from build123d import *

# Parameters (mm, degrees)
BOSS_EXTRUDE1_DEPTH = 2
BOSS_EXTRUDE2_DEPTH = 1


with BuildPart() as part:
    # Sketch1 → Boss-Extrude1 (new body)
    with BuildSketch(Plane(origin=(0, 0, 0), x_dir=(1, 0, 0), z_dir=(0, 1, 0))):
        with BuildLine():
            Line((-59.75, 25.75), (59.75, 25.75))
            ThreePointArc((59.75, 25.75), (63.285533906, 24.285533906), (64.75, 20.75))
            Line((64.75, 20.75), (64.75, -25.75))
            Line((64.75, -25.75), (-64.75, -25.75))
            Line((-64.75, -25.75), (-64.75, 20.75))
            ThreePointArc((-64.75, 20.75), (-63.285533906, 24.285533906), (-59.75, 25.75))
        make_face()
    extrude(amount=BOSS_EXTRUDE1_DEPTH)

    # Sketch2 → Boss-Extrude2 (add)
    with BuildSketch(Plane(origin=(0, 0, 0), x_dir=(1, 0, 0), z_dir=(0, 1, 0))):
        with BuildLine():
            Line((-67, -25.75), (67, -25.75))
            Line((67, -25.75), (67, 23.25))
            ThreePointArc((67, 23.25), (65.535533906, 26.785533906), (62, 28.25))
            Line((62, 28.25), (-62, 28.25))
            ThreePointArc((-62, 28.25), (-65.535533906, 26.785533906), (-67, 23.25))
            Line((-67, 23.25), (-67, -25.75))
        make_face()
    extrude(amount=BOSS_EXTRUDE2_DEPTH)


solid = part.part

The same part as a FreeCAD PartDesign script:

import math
import FreeCAD as App
import Part
import Sketcher
from FreeCAD import Vector

doc = App.newDocument("Part")
body = doc.addObject("PartDesign::Body", "Body")

sketch1 = doc.addObject("Sketcher::SketchObject", "Sketch")
body.addObject(sketch1)
sketch1.AttachmentSupport = (doc.XZ_Plane, [""])
sketch1.MapMode = "FlatFace"
sketch1.addGeometry(Part.LineSegment(Vector(60, -26, 0), Vector(-60, -26, 0)), False)
sketch1.addGeometry(Part.ArcOfCircle(Part.Circle(Vector(-60, -21, 0), Vector(0, 0, 1), 5), math.radians(180), math.radians(270)), False)
sketch1.addGeometry(Part.LineSegment(Vector(-65, -21, 0), Vector(-65, 26, 0)), False)
sketch1.addGeometry(Part.LineSegment(Vector(-65, 26, 0), Vector(65, 26, 0)), False)
sketch1.addGeometry(Part.LineSegment(Vector(65, 26, 0), Vector(65, -21, 0)), False)
sketch1.addGeometry(Part.ArcOfCircle(Part.Circle(Vector(60, -21, 0), Vector(0, 0, 1), 5), math.radians(-90), math.radians(0)), False)
sketch1.addConstraint(Sketcher.Constraint("Tangent", 0, 2, 1, 2))
sketch1.addConstraint(Sketcher.Constraint("Tangent", 1, 1, 2, 1))
sketch1.addConstraint(Sketcher.Constraint("Coincident", 2, 2, 3, 1))
sketch1.addConstraint(Sketcher.Constraint("Coincident", 3, 2, 4, 1))
sketch1.addConstraint(Sketcher.Constraint("Tangent", 4, 2, 5, 2))
sketch1.addConstraint(Sketcher.Constraint("Tangent", 5, 1, 0, 1))
sketch1.addConstraint(Sketcher.Constraint("Horizontal", 0))
sketch1.addConstraint(Sketcher.Constraint("Vertical", 2))
sketch1.addConstraint(Sketcher.Constraint("Horizontal", 3))
sketch1.addConstraint(Sketcher.Constraint("Vertical", 4))
sketch1.addConstraint(Sketcher.Constraint("Equal", 1, 5))
sketch1.addConstraint(Sketcher.Constraint("Radius", 1, 5.0))
sketch1.addConstraint(Sketcher.Constraint("DistanceX", 0, 2, 0, 1, 119.5))
sketch1.addConstraint(Sketcher.Constraint("DistanceY", 2, 1, 2, 2, 46.5))
sketch1.addConstraint(Sketcher.Constraint("DistanceX", 1, 3, -1, 1, 59.75))
sketch1.addConstraint(Sketcher.Constraint("DistanceY", 1, 3, -1, 1, 20.75))
pad1 = doc.addObject("PartDesign::Pad", "Pad")
body.addObject(pad1)
pad1.Profile = sketch1
pad1.Length = 2
pad1.Reversed = True

sketch2 = doc.addObject("Sketcher::SketchObject", "Sketch001")
body.addObject(sketch2)
sketch2.AttachmentSupport = (doc.XZ_Plane, [""])
sketch2.MapMode = "FlatFace"
sketch2.addGeometry(Part.LineSegment(Vector(-67, 26, 0), Vector(67, 26, 0)), False)
sketch2.addGeometry(Part.LineSegment(Vector(67, 26, 0), Vector(67, -23, 0)), False)
sketch2.addGeometry(Part.ArcOfCircle(Part.Circle(Vector(62, -23, 0), Vector(0, 0, 1), 5), math.radians(-90), math.radians(0)), False)
sketch2.addGeometry(Part.LineSegment(Vector(62, -28, 0), Vector(-62, -28, 0)), False)
sketch2.addGeometry(Part.ArcOfCircle(Part.Circle(Vector(-62, -23, 0), Vector(0, 0, 1), 5), math.radians(180), math.radians(270)), False)
sketch2.addGeometry(Part.LineSegment(Vector(-67, -23, 0), Vector(-67, 26, 0)), False)
sketch2.addConstraint(Sketcher.Constraint("Coincident", 0, 2, 1, 1))
sketch2.addConstraint(Sketcher.Constraint("Tangent", 1, 2, 2, 2))
sketch2.addConstraint(Sketcher.Constraint("Tangent", 2, 1, 3, 1))
sketch2.addConstraint(Sketcher.Constraint("Tangent", 3, 2, 4, 2))
sketch2.addConstraint(Sketcher.Constraint("Tangent", 4, 1, 5, 1))
sketch2.addConstraint(Sketcher.Constraint("Coincident", 5, 2, 0, 1))
sketch2.addConstraint(Sketcher.Constraint("Horizontal", 0))
sketch2.addConstraint(Sketcher.Constraint("Vertical", 1))
sketch2.addConstraint(Sketcher.Constraint("Horizontal", 3))
sketch2.addConstraint(Sketcher.Constraint("Vertical", 5))
sketch2.addConstraint(Sketcher.Constraint("Equal", 2, 4))
sketch2.addConstraint(Sketcher.Constraint("Radius", 2, 5.0))
sketch2.addConstraint(Sketcher.Constraint("DistanceX", 0, 1, 0, 2, 134.0))
sketch2.addConstraint(Sketcher.Constraint("DistanceY", 1, 2, 1, 1, 49.0))
sketch2.addConstraint(Sketcher.Constraint("DistanceX", -1, 1, 2, 3, 62.0))
sketch2.addConstraint(Sketcher.Constraint("DistanceY", 2, 3, -1, 1, 23.25))
pad2 = doc.addObject("PartDesign::Pad", "Pad001")
body.addObject(pad2)
pad2.Profile = sketch2
pad2.Length = 1
pad2.Reversed = True

doc.recompute()
